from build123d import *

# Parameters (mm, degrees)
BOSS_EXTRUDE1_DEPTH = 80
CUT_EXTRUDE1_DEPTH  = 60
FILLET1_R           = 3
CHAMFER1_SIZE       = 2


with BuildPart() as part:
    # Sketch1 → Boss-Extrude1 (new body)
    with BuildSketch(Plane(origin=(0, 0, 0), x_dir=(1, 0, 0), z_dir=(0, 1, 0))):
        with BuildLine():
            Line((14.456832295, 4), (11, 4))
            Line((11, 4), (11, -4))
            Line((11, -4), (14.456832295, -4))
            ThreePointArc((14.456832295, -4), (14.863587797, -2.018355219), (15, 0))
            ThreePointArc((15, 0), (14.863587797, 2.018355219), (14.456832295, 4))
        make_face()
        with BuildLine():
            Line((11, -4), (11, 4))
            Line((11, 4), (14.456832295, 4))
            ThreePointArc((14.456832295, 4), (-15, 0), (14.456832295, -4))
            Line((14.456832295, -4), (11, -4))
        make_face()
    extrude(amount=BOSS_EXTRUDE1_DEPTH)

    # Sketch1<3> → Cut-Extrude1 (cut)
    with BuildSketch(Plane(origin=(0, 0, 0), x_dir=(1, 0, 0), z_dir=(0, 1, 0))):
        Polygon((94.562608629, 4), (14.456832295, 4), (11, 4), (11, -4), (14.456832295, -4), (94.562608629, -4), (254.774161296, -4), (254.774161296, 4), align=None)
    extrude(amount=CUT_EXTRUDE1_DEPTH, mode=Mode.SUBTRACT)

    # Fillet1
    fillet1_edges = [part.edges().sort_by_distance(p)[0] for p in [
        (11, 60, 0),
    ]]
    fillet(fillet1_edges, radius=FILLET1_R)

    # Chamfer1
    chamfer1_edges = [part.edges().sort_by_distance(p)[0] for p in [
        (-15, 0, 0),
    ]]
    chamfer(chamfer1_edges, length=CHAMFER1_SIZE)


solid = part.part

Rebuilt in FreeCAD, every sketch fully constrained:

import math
import FreeCAD as App
import Part
import Sketcher
from FreeCAD import Vector
Q = App.Units.Quantity


def edges_at(feature, points):
    """Names of the edges that pass closest to the given points."""
    edges = feature.Shape.Edges
    near = lambda p: min(range(len(edges)), key=lambda i: edges[i].distToShape(Part.Vertex(*p))[0])
    return sorted({f"Edge{near(p) + 1}" for p in points})


def add_polygon(sketch, points):
    """Adds a closed chain of lines whose ends are joined by coincident constraints."""
    first, n = sketch.GeometryCount, len(points)
    for a, b in zip(points, points[1:] + points[:1]):
        sketch.addGeometry(Part.LineSegment(App.Vector(*a, 0), App.Vector(*b, 0)), False)
    for i in range(n):
        sketch.addConstraint(Sketcher.Constraint("Coincident", first + i, 2, first + (i + 1) % n, 1))

doc = App.newDocument("Part")
body = doc.addObject("PartDesign::Body", "Body")

sketch1 = body.newObject("Sketcher::SketchObject", "Sketch")
sketch1.AttachmentSupport = (doc.getObject("XZ_Plane"), [""])
sketch1.MapMode = "FlatFace"
sketch1.addGeometry(Part.ArcOfCircle(Part.Circle(Vector(0, 0, 0), Vector(0, 0, 1), 15), math.radians(0), math.radians(15.46601)), False)
sketch1.addGeometry(Part.ArcOfCircle(Part.Circle(Vector(0, 0, 0), Vector(0, 0, 1), 15), math.radians(-15.46601), math.radians(0)), False)
sketch1.addGeometry(Part.ArcOfCircle(Part.Circle(Vector(0, 0, 0), Vector(0, 0, 1), 15), math.radians(15.46601), math.radians(344.53399)), False)
sketch1.addConstraint(Sketcher.Constraint("Tangent", 0, 1, 1, 2))
sketch1.addConstraint(Sketcher.Constraint("Tangent", 1, 1, 2, 2))
sketch1.addConstraint(Sketcher.Constraint("Tangent", 2, 1, 0, 2))
sketch1.addConstraint(Sketcher.Constraint("Coincident", 0, 3, -1, 1))
sketch1.addConstraint(Sketcher.Constraint("PointOnObject", 0, 1, -1))
sketch1.addConstraint(Sketcher.Constraint("Vertical", 1, 1, 2, 1))
sketch1.addConstraint(Sketcher.Constraint("Radius", 0, Q("15 mm")))
sketch1.addConstraint(Sketcher.Constraint("DistanceY", 1, 1, -1, 1, Q("4 mm")))
pad1 = body.newObject("PartDesign::Pad", "Pad")
pad1.Profile = sketch1
pad1.Length = 80
pad1.Reversed = True

sketch2 = body.newObject("Sketcher::SketchObject", "Sketch001")
sketch2.AttachmentSupport = (doc.getObject("XZ_Plane"), [""])
sketch2.MapMode = "FlatFace"
add_polygon(sketch2, [(11, -4), (11, 4), (254.774161, 4), (254.774161, -4)])
sketch2.addConstraint(Sketcher.Constraint("Vertical", 0))
sketch2.addConstraint(Sketcher.Constraint("Horizontal", 1))
sketch2.addConstraint(Sketcher.Constraint("Vertical", 2))
sketch2.addConstraint(Sketcher.Constraint("Horizontal", 3))
sketch2.addConstraint(Sketcher.Constraint("DistanceY", 0, 1, 0, 2, Q("8 mm")))
sketch2.addConstraint(Sketcher.Constraint("DistanceX", -1, 1, 0, 2, Q("11 mm")))
sketch2.addConstraint(Sketcher.Constraint("DistanceY", -1, 1, 0, 2, Q("4 mm")))
sketch2.addConstraint(Sketcher.Constraint("DistanceX", 1, 1, 1, 2, Q("243.774161 mm")))
pocket1 = body.newObject("PartDesign::Pocket", "Pocket")
pocket1.Profile = sketch2
pocket1.Length = 60
doc.recompute()

fillet = body.newObject("PartDesign::Fillet", "Fillet")
fillet.Base = (pocket1, edges_at(pocket1, [(11, 60, 0)]))
fillet.Radius = 3
doc.recompute()

chamfer = body.newObject("PartDesign::Chamfer", "Chamfer")
chamfer.Base = (fillet, edges_at(fillet, [(-15, 0, 0)]))
chamfer.Size = 2

doc.recompute()
